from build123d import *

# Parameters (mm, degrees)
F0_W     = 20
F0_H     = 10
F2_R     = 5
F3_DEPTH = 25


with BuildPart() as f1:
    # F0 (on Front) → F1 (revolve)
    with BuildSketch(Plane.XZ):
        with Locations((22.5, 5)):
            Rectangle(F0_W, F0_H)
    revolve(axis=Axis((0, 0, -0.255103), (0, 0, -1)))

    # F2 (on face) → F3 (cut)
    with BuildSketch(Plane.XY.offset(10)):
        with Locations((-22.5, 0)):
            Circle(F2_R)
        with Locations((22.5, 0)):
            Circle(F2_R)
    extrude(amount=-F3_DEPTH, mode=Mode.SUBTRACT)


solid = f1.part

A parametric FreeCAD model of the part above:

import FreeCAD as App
import Part
import Sketcher
Q = App.Units.Quantity

doc = App.newDocument("Part")
params = doc.addObject("Spreadsheet::Sheet", "Params")
for row, (alias, value) in enumerate([
    ("sketch1_width", "20 mm"),
    ("sketch1_height", "10 mm"),
    ("revolution_angle", "360 deg"),
    ("sketch2_diameter", "10 mm"),
    ("pocket1_length", "25 mm"),
], start=1):
    params.set(f"A{row}", alias)
    params.set(f"B{row}", "=" + value)
    params.setAlias(f"B{row}", alias)

body = doc.addObject("PartDesign::Body", "Body")

sketch1 = doc.addObject("Sketcher::SketchObject", "Sketch")
body.addObject(sketch1)
sketch1.AttachmentSupport = (doc.XZ_Plane, [""])
sketch1.MapMode = "FlatFace"
sketch1.addGeometry([
    Part.LineSegment(App.Vector(12, 10, 0), App.Vector(12, 0, 0)),
    Part.LineSegment(App.Vector(12, 0, 0), App.Vector(32, 0, 0)),
    Part.LineSegment(App.Vector(32, 0, 0), App.Vector(32, 10, 0)),
    Part.LineSegment(App.Vector(32, 10, 0), App.Vector(12, 10, 0)),
], False)
sketch1.addConstraint([
    Sketcher.Constraint("Coincident", 0, 2, 1, 1),
    Sketcher.Constraint("Coincident", 1, 2, 2, 1),
    Sketcher.Constraint("Coincident", 2, 2, 3, 1),
    Sketcher.Constraint("Coincident", 3, 2, 0, 1),
    Sketcher.Constraint("Vertical", 0),
    Sketcher.Constraint("Horizontal", 1),
    Sketcher.Constraint("Vertical", 2),
    Sketcher.Constraint("Horizontal", 3),
    Sketcher.Constraint("PointOnObject", 0, 2, -1),
    Sketcher.Constraint("DistanceX", 1, 1, 1, 2, Q("20 mm")),
    Sketcher.Constraint("DistanceY", 0, 2, 0, 1, Q("10 mm")),
    Sketcher.Constraint("DistanceX", -1, 1, 0, 2, Q("12.5 mm")),
])
sketch1.setExpression("Constraints[9]", "Params.sketch1_width")
sketch1.setExpression("Constraints[10]", "Params.sketch1_height")
revolution = doc.addObject("PartDesign::Revolution", "Revolution")
body.addObject(revolution)
revolution.Profile = sketch1
revolution.ReferenceAxis = (sketch1, ["V_Axis"])
revolution.setExpression("Angle", "Params.revolution_angle")

sketch2 = doc.addObject("Sketcher::SketchObject", "Sketch001")
body.addObject(sketch2)
sketch2.AttachmentSupport = (doc.XY_Plane, [""])
sketch2.MapMode = "FlatFace"
sketch2.AttachmentOffset = App.Placement(App.Vector(0, 0, 10), App.Rotation())
sketch2.addGeometry([
    Part.Circle(App.Vector(-22, 0, 0), App.Vector(0, 0, 1), 5),
    Part.Circle(App.Vector(22, 0, 0), App.Vector(0, 0, 1), 5),
], False)
sketch2.addConstraint([
    Sketcher.Constraint("Equal", 0, 1),
    Sketcher.Constraint("Symmetric", 0, 3, 1, 3, -1, 1),
    Sketcher.Constraint("PointOnObject", 0, 3, -1),
    Sketcher.Constraint("Diameter", 0, Q("10 mm")),
    Sketcher.Constraint("DistanceX", 0, 3, 1, 3, Q("45 mm")),
])
sketch2.setExpression("Constraints[3]", "Params.sketch2_diameter")
pocket1 = doc.addObject("PartDesign::Pocket", "Pocket")
body.addObject(pocket1)
pocket1.Profile = sketch2
pocket1.setExpression("Length", "Params.pocket1_length")

doc.recompute()
